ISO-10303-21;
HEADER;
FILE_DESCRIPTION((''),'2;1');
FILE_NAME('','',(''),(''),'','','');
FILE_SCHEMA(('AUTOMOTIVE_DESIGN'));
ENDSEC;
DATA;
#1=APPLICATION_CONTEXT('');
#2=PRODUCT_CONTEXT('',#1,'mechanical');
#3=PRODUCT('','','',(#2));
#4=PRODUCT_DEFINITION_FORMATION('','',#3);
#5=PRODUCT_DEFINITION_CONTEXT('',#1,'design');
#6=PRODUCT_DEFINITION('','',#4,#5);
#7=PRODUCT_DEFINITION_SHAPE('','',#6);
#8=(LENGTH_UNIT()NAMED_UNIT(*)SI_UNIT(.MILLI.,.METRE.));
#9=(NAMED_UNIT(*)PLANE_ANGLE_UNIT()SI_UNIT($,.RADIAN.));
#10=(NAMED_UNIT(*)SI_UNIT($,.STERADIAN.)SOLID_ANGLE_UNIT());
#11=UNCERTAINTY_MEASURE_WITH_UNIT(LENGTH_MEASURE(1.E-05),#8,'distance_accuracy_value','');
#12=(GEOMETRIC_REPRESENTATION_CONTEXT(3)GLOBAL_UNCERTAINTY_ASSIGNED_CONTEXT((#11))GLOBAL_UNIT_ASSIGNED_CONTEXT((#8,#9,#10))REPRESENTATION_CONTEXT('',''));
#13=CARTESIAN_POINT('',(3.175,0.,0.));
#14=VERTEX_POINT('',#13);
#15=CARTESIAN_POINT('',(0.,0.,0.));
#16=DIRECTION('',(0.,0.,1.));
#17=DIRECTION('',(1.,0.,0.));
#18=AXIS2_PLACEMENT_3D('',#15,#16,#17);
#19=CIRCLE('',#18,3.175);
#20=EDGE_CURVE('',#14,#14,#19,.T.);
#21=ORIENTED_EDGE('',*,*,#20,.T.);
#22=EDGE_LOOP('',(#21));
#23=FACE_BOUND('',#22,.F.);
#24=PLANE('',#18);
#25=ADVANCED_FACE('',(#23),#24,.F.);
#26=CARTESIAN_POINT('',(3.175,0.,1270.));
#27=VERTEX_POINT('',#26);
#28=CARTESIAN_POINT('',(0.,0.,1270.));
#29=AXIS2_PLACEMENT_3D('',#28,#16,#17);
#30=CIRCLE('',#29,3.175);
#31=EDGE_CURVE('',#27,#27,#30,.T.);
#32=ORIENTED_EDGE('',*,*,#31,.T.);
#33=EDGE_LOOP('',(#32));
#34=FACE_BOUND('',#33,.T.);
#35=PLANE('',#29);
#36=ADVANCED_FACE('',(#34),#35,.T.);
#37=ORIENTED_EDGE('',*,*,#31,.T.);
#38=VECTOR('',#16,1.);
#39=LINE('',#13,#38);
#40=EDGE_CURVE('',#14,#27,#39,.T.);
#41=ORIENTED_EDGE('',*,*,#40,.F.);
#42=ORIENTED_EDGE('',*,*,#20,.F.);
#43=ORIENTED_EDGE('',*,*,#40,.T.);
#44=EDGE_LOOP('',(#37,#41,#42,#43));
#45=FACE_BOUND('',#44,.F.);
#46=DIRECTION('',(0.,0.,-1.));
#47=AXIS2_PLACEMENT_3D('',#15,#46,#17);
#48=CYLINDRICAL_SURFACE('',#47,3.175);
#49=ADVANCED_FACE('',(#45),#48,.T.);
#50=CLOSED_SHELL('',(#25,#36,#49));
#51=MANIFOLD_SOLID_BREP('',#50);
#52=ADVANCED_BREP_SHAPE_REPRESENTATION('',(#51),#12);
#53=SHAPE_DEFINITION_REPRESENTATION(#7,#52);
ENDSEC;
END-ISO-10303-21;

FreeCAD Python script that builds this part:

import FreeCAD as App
import Part
import Sketcher
Q = App.Units.Quantity

doc = App.newDocument("Part")
body = doc.addObject("PartDesign::Body", "Body")

sketch1 = body.newObject("Sketcher::SketchObject", "Sketch")
sketch1.AttachmentSupport = (doc.getObject("XY_Plane"), [""])
sketch1.MapMode = "FlatFace"
sketch1.addGeometry(Part.Circle(App.Vector(0, 0, 0), App.Vector(0, 0, 1), 3.2), False)
sketch1.addConstraint([
    Sketcher.Constraint("Coincident", 0, 3, -1, 1),
    Sketcher.Constraint("Diameter", 0, Q("0.25 in")),
])
pad1 = body.newObject("PartDesign::Pad", "Pad")
pad1.Profile = sketch1
pad1.Length = Q("50 in")

doc.recompute()
